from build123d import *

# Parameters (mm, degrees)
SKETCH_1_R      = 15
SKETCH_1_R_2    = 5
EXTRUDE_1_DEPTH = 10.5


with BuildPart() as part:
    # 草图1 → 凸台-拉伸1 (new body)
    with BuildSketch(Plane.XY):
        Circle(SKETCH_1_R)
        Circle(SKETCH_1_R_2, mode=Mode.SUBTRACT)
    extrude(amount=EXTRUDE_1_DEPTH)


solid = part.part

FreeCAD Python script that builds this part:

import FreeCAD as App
import Part
import Sketcher

V = App.Vector
Q = App.Units.Quantity

doc = App.newDocument("Part")
params = doc.addObject("Spreadsheet::Sheet", "Params")
for row, (alias, value) in enumerate([
    ("sketch1_diameter", "30 mm"),
    ("sketch1_diameter2", "10 mm"),
    ("pad1_length", "10.5 mm"),
], start=1):
    params.set(f"A{row}", alias)
    params.set(f"B{row}", "=" + value)
    params.setAlias(f"B{row}", alias)

body = doc.addObject("PartDesign::Body", "Body")

sketch1 = body.newObject("Sketcher::SketchObject", "Sketch")
sketch1.AttachmentSupport = (doc.getObject("XY_Plane"), [""])
sketch1.MapMode = "FlatFace"
sketch1.addGeometry([
    Part.Circle(V(0, 0, 0), V(0, 0, 1), 15),
    Part.Circle(V(0, 0, 0), V(0, 0, 1), 5),
], False)
sketch1.addConstraint([
    Sketcher.Constraint("Coincident", 0, 3, -1, 1),
    Sketcher.Constraint("Coincident", 1, 3, -1, 1),
    Sketcher.Constraint("Diameter", 0, Q("30 mm")),
    Sketcher.Constraint("Diameter", 1, Q("10 mm")),
])
sketch1.setExpression("Constraints[2]", "Params.sketch1_diameter")
sketch1.setExpression("Constraints[3]", "Params.sketch1_diameter2")
pad1 = body.newObject("PartDesign::Pad", "Pad")
pad1.Profile = sketch1
pad1.setExpression("Length", "Params.pad1_length")

doc.recompute()
